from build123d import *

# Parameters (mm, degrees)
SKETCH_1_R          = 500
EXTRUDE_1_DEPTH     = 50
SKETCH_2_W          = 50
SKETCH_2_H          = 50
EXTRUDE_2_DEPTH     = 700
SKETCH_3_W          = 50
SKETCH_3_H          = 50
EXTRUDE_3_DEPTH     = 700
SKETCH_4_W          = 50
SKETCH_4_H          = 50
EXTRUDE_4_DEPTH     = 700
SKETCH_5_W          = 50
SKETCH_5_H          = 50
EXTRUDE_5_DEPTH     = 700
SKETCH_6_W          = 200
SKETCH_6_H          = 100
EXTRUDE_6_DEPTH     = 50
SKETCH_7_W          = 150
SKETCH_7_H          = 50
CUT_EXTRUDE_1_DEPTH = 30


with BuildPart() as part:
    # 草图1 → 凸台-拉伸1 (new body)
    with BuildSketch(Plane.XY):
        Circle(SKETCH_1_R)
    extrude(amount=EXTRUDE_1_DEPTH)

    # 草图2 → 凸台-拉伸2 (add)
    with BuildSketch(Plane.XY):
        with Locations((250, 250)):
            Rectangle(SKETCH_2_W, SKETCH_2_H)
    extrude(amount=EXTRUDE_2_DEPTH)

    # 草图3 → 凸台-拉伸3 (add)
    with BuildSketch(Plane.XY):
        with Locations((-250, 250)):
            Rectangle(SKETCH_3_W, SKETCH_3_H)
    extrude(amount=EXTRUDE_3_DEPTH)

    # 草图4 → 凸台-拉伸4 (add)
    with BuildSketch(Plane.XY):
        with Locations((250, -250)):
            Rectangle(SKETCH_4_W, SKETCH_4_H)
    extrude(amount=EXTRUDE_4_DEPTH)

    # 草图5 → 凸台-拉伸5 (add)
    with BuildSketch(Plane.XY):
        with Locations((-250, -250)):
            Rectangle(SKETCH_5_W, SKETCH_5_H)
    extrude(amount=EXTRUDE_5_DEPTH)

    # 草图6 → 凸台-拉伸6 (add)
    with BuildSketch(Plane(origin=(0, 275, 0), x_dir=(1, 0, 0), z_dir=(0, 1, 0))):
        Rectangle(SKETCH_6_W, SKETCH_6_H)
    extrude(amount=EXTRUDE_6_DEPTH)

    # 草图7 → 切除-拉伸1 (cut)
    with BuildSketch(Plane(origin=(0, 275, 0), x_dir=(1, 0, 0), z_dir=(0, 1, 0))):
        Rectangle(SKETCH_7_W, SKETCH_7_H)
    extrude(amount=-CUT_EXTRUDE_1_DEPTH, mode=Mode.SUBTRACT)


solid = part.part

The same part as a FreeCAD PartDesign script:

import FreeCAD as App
import Part
import Sketcher
from FreeCAD import Vector
Q = App.Units.Quantity


def add_polygon(sketch, points):
    """Adds a closed chain of lines whose ends are joined by coincident constraints."""
    first, n = sketch.GeometryCount, len(points)
    for a, b in zip(points, points[1:] + points[:1]):
        sketch.addGeometry(Part.LineSegment(App.Vector(*a, 0), App.Vector(*b, 0)), False)
    for i in range(n):
        sketch.addConstraint(Sketcher.Constraint("Coincident", first + i, 2, first + (i + 1) % n, 1))

doc = App.newDocument("Part")
body = doc.addObject("PartDesign::Body", "Body")

# Sketch on XY plane
sketch1 = body.newObject("Sketcher::SketchObject", "Sketch")
sketch1.AttachmentSupport = (doc.getObject("XY_Plane"), [""])
sketch1.MapMode = "FlatFace"
sketch1.addGeometry(Part.Circle(Vector(0, 0, 0), Vector(0, 0, 1), 500), False)
sketch1.addConstraint([
    Sketcher.Constraint("Coincident", 0, 3, -1, 1),
    Sketcher.Constraint("Diameter", 0, Q("1000 mm")),
])
pad1 = body.newObject("PartDesign::Pad", "Pad")
pad1.Profile = sketch1
pad1.Length = 50

# Sketch on XY plane
sketch2 = body.newObject("Sketcher::SketchObject", "Sketch001")
sketch2.AttachmentSupport = (doc.getObject("XY_Plane"), [""])
sketch2.MapMode = "FlatFace"
add_polygon(sketch2, [(225, 275), (225, 225), (275, 225), (275, 275)])  # lines 0-3
sketch2.addConstraint([
    Sketcher.Constraint("Vertical", 0),
    Sketcher.Constraint("Horizontal", 1),
    Sketcher.Constraint("Vertical", 2),
    Sketcher.Constraint("Horizontal", 3),
    Sketcher.Constraint("Equal", 3, 0),
    Sketcher.Constraint("DistanceX", 1, 1, 1, 2, Q("50 mm")),
    Sketcher.Constraint("DistanceX", -1, 1, 0, 2, Q("225 mm")),
    Sketcher.Constraint("DistanceY", -1, 1, 0, 2, Q("225 mm")),
])
pad2 = body.newObject("PartDesign::Pad", "Pad001")
pad2.Profile = sketch2
pad2.Length = 700

# Sketch on XY plane
sketch3 = body.newObject("Sketcher::SketchObject", "Sketch002")
sketch3.AttachmentSupport = (doc.getObject("XY_Plane"), [""])
sketch3.MapMode = "FlatFace"
add_polygon(sketch3, [(-275, 275), (-275, 225), (-225, 225), (-225, 275)])  # lines 0-3
sketch3.addConstraint([
    Sketcher.Constraint("Vertical", 0),
    Sketcher.Constraint("Horizontal", 1),
    Sketcher.Constraint("Vertical", 2),
    Sketcher.Constraint("Horizontal", 3),
    Sketcher.Constraint("Equal", 3, 0),
    Sketcher.Constraint("DistanceX", 1, 1, 1, 2, Q("50 mm")),
    Sketcher.Constraint("DistanceX", 0, 2, -1, 1, Q("275 mm")),
    Sketcher.Constraint("DistanceY", -1, 1, 0, 2, Q("225 mm")),
])
pad3 = body.newObject("PartDesign::Pad", "Pad002")
pad3.Profile = sketch3
pad3.Length = 700

# Sketch on XY plane
sketch4 = body.newObject("Sketcher::SketchObject", "Sketch003")
sketch4.AttachmentSupport = (doc.getObject("XY_Plane"), [""])
sketch4.MapMode = "FlatFace"
add_polygon(sketch4, [(225, -225), (225, -275), (275, -275), (275, -225)])  # lines 0-3
sketch4.addConstraint([
    Sketcher.Constraint("Vertical", 0),
    Sketcher.Constraint("Horizontal", 1),
    Sketcher.Constraint("Vertical", 2),
    Sketcher.Constraint("Horizontal", 3),
    Sketcher.Constraint("Equal", 3, 0),
    Sketcher.Constraint("DistanceX", 1, 1, 1, 2, Q("50 mm")),
    Sketcher.Constraint("DistanceX", -1, 1, 0, 2, Q("225 mm")),
    Sketcher.Constraint("DistanceY", 0, 2, -1, 1, Q("275 mm")),
])
pad4 = body.newObject("PartDesign::Pad", "Pad003")
pad4.Profile = sketch4
pad4.Length = 700

# Sketch on XY plane
sketch5 = body.newObject("Sketcher::SketchObject", "Sketch004")
sketch5.AttachmentSupport = (doc.getObject("XY_Plane"), [""])
sketch5.MapMode = "FlatFace"
add_polygon(sketch5, [(-275, -225), (-275, -275), (-225, -275), (-225, -225)])  # lines 0-3
sketch5.addConstraint([
    Sketcher.Constraint("Vertical", 0),
    Sketcher.Constraint("Horizontal", 1),
    Sketcher.Constraint("Vertical", 2),
    Sketcher.Constraint("Horizontal", 3),
    Sketcher.Constraint("Equal", 3, 0),
    Sketcher.Constraint("DistanceX", 1, 1, 1, 2, Q("50 mm")),
    Sketcher.Constraint("DistanceX", 0, 2, -1, 1, Q("275 mm")),
    Sketcher.Constraint("DistanceY", 0, 2, -1, 1, Q("275 mm")),
])
pad5 = body.newObject("PartDesign::Pad", "Pad004")
pad5.Profile = sketch5
pad5.Length = 700

# Sketch on XZ plane
sketch6 = body.newObject("Sketcher::SketchObject", "Sketch005")
sketch6.AttachmentSupport = (doc.getObject("XZ_Plane"), [""])
sketch6.MapMode = "FlatFace"
sketch6.AttachmentOffset = App.Placement(Vector(0, 0, -275), App.Rotation())
add_polygon(sketch6, [(-100, -50), (-100, 50), (100, 50), (100, -50)])  # lines 0-3
sketch6.addConstraint([
    Sketcher.Constraint("Vertical", 0),
    Sketcher.Constraint("Horizontal", 1),
    Sketcher.Constraint("Vertical", 2),
    Sketcher.Constraint("Horizontal", 3),
    Sketcher.Constraint("Symmetric", 0, 2, 2, 2, -1, 1),
    Sketcher.Constraint("DistanceX", 1, 1, 1, 2, Q("200 mm")),
    Sketcher.Constraint("DistanceY", 0, 1, 0, 2, Q("100 mm")),
])
pad6 = body.newObject("PartDesign::Pad", "Pad005")
pad6.Profile = sketch6
pad6.Length = 50
pad6.Reversed = True

# Sketch on XZ plane
sketch7 = body.newObject("Sketcher::SketchObject", "Sketch006")
sketch7.AttachmentSupport = (doc.getObject("XZ_Plane"), [""])
sketch7.MapMode = "FlatFace"
sketch7.AttachmentOffset = App.Placement(Vector(0, 0, -275), App.Rotation())
add_polygon(sketch7, [(-75, -25), (-75, 25), (75, 25), (75, -25)])  # lines 0-3
sketch7.addConstraint([
    Sketcher.Constraint("Vertical", 0),
    Sketcher.Constraint("Horizontal", 1),
    Sketcher.Constraint("Vertical", 2),
    Sketcher.Constraint("Horizontal", 3),
    Sketcher.Constraint("Symmetric", 0, 2, 2, 2, -1, 1),
    Sketcher.Constraint("DistanceX", 1, 1, 1, 2, Q("150 mm")),
    Sketcher.Constraint("DistanceY", 0, 1, 0, 2, Q("50 mm")),
])
pocket1 = body.newObject("PartDesign::Pocket", "Pocket")
pocket1.Profile = sketch7
pocket1.Length = 30
pocket1.Reversed = True

doc.recompute()
